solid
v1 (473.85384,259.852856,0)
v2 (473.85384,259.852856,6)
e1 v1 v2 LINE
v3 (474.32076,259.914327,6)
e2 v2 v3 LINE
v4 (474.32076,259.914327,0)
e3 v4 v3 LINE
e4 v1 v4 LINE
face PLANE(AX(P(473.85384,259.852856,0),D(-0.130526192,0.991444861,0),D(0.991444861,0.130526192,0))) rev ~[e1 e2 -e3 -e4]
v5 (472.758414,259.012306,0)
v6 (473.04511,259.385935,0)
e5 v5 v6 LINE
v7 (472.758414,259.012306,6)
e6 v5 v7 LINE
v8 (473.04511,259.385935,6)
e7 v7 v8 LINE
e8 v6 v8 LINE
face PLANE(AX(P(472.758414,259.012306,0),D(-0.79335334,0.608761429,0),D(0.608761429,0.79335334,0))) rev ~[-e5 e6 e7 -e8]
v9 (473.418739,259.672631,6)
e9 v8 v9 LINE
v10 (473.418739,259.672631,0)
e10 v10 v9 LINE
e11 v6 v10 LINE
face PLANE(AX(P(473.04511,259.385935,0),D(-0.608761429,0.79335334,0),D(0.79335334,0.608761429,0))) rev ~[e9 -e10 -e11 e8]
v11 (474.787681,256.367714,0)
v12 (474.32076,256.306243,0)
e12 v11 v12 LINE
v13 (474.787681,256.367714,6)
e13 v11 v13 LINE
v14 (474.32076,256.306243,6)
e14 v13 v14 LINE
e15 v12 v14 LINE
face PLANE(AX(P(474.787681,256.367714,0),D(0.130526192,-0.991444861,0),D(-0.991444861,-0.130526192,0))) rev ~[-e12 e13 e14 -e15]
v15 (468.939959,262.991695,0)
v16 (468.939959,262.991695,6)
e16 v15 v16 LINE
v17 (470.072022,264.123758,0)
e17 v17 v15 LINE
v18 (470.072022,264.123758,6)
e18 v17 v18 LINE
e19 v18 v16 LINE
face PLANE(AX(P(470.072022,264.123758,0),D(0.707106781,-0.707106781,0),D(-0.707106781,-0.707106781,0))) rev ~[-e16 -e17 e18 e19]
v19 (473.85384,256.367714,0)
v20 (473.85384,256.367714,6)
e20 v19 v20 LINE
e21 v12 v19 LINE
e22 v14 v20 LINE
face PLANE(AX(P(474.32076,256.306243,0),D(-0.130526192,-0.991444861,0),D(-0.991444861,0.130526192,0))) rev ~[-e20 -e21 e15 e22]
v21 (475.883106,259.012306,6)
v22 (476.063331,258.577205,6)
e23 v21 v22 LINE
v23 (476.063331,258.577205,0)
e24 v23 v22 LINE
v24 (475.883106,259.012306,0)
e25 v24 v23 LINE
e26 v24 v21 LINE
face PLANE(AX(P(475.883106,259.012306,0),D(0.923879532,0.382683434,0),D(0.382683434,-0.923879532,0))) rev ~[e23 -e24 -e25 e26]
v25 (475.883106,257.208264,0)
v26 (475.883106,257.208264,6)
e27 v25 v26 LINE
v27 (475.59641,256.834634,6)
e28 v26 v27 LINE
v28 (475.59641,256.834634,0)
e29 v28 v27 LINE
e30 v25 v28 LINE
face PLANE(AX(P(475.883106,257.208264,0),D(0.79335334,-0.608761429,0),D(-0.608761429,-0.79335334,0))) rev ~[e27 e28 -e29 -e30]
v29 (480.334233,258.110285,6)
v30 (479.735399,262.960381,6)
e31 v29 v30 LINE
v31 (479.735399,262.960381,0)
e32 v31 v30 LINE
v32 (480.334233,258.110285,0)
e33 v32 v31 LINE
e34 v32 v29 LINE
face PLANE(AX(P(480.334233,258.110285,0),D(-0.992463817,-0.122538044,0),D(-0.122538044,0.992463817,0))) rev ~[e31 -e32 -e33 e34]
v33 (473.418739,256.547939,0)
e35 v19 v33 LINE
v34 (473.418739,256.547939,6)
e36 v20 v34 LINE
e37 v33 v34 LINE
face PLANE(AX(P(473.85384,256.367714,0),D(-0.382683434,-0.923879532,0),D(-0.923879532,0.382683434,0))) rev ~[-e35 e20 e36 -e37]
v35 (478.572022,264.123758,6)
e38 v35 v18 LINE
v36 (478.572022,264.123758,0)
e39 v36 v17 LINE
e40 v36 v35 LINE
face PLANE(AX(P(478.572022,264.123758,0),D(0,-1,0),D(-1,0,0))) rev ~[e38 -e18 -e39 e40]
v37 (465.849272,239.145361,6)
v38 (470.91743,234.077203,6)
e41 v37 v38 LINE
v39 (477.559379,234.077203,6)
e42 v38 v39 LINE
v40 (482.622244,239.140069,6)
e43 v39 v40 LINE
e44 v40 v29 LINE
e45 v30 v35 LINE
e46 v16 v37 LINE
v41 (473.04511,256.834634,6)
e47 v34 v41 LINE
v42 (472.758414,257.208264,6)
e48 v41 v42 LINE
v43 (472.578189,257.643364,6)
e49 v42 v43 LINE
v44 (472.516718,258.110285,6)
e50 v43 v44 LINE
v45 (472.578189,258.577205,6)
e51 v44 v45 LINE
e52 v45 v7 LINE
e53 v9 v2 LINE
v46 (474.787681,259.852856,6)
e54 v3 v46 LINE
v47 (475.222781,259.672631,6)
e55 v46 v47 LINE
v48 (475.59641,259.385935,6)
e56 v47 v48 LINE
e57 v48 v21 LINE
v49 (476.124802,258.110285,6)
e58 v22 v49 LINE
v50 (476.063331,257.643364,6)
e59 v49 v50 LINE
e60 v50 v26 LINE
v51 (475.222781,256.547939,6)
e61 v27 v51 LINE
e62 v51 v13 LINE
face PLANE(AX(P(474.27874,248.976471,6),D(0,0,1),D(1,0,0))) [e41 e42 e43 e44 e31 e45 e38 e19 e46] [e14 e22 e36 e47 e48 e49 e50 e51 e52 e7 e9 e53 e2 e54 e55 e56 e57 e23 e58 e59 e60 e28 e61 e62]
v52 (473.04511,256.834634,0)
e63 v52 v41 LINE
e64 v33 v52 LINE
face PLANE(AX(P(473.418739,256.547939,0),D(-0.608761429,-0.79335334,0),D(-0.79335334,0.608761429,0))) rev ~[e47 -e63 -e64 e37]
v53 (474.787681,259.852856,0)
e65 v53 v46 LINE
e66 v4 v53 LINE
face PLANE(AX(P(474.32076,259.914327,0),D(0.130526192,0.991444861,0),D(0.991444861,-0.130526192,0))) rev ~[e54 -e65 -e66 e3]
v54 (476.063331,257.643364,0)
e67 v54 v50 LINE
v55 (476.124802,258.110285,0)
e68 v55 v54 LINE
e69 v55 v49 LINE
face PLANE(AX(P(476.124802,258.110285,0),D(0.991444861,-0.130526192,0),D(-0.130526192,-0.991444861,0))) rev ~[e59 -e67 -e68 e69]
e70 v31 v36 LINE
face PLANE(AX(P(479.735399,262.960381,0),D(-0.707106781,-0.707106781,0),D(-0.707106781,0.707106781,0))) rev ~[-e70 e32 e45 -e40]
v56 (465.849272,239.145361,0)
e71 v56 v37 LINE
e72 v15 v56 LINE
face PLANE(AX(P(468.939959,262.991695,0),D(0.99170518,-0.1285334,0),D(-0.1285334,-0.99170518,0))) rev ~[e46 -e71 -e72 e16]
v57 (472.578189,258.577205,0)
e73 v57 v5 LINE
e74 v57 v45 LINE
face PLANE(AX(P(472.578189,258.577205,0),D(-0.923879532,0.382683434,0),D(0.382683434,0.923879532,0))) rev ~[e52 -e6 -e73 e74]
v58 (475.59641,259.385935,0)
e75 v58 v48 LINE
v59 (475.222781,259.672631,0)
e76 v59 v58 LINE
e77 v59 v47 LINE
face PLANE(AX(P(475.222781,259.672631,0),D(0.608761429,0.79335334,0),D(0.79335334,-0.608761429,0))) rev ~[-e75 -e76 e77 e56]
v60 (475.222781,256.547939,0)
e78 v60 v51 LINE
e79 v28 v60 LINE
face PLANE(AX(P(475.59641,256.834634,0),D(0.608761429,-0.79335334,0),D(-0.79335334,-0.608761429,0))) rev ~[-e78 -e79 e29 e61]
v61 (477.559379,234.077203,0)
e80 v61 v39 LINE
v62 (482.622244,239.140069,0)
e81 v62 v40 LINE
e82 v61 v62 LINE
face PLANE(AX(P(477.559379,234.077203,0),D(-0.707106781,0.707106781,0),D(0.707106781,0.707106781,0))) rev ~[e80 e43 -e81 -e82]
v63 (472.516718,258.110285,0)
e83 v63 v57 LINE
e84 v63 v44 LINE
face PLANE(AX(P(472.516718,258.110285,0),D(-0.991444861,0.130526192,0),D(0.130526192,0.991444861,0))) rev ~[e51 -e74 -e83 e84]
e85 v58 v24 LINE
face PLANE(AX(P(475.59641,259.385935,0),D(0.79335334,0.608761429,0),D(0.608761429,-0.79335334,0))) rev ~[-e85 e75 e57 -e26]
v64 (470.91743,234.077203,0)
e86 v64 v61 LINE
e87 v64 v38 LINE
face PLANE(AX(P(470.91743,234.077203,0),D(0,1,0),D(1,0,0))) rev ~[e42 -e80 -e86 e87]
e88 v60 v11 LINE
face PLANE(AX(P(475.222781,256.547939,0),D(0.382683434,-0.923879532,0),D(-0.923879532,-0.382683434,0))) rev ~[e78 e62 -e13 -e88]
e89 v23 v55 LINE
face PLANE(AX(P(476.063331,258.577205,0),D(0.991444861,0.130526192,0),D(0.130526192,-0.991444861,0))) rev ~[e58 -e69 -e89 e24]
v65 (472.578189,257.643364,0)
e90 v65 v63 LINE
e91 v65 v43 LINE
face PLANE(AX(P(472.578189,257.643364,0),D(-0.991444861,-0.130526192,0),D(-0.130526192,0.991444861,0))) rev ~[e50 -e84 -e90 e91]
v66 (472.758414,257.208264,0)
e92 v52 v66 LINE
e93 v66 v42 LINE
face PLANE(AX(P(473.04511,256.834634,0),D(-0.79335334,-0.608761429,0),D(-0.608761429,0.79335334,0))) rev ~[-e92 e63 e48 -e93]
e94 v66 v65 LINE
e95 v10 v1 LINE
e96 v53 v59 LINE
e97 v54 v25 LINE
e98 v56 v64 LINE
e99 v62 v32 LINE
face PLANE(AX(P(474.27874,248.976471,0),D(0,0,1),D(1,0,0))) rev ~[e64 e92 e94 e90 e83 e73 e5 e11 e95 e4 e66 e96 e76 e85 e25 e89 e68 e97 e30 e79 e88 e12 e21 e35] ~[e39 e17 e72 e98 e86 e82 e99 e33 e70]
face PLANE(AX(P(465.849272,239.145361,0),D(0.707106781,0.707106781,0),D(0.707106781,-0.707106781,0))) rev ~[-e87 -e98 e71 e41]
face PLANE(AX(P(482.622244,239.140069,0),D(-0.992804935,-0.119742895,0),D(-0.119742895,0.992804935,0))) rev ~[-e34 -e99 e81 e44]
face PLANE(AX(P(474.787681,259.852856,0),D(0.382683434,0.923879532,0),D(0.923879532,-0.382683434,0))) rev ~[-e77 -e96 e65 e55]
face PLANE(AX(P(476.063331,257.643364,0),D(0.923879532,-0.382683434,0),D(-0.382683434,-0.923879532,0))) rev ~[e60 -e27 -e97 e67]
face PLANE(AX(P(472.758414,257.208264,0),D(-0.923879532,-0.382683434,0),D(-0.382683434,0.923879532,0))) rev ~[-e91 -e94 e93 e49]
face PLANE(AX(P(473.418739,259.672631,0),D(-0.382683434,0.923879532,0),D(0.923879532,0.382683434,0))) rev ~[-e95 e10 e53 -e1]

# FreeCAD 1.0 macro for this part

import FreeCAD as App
import Part
import Sketcher

V = App.Vector
Q = App.Units.Quantity


def add_polygon(sketch, points):
    """Adds a closed chain of lines whose ends are joined by coincident constraints."""
    first, n = sketch.GeometryCount, len(points)
    for a, b in zip(points, points[1:] + points[:1]):
        sketch.addGeometry(Part.LineSegment(App.Vector(*a, 0), App.Vector(*b, 0)), False)
    for i in range(n):
        sketch.addConstraint(Sketcher.Constraint("Coincident", first + i, 2, first + (i + 1) % n, 1))

doc = App.newDocument("Part")
body = doc.addObject("PartDesign::Body", "Body")

# Sketch on XY plane
sketch1 = body.newObject("Sketcher::SketchObject", "Sketch")
sketch1.AttachmentSupport = (doc.getObject("XY_Plane"), [""])
sketch1.MapMode = "FlatFace"
add_polygon(sketch1, [(480.334233, 258.110285), (479.735399, 262.960381), (478.572022, 264.123758), (470.072022, 264.123758), (468.939959, 262.991695), (465.849272, 239.145361), (470.91743, 234.077203), (477.559379, 234.077203), (482.622244, 239.140069)])  # lines 0-8
add_polygon(sketch1, [(475.59641, 259.385935), (475.883106, 259.012306), (476.063331, 258.577205), (476.124802, 258.110285), (476.063331, 257.643364), (475.883106, 257.208264), (475.59641, 256.834634), (475.222781, 256.547939), (474.787681, 256.367714), (474.32076, 256.306243), (473.85384, 256.367714), (473.418739, 256.547939), (473.04511, 256.834634), (472.758414, 257.208264), (472.578189, 257.643364), (472.516718, 258.110285), (472.578189, 258.577205), (472.758414, 259.012306), (473.04511, 259.385935), (473.418739, 259.672631), (473.85384, 259.852856), (474.32076, 259.914327), (474.787681, 259.852856), (475.222781, 259.672631)])  # lines 9-32
sketch1.addConstraint([
    Sketcher.Constraint("Horizontal", 2),
    Sketcher.Constraint("Horizontal", 6),
    Sketcher.Constraint("Perpendicular", 1, 3),
    Sketcher.Constraint("Perpendicular", 3, 5),
    Sketcher.Constraint("Perpendicular", 5, 7),
    Sketcher.Constraint("Perpendicular", 9, 15),
    Sketcher.Constraint("Perpendicular", 10, 16),
    Sketcher.Constraint("Perpendicular", 11, 17),
    Sketcher.Constraint("Perpendicular", 12, 18),
    Sketcher.Constraint("Perpendicular", 13, 19),
    Sketcher.Constraint("Perpendicular", 14, 20),
    Sketcher.Constraint("Perpendicular", 15, 21),
    Sketcher.Constraint("Perpendicular", 16, 22),
    Sketcher.Constraint("Perpendicular", 17, 23),
    Sketcher.Constraint("Perpendicular", 18, 24),
    Sketcher.Constraint("Perpendicular", 19, 25),
    Sketcher.Constraint("Perpendicular", 20, 26),
    Sketcher.Constraint("Perpendicular", 21, 27),
    Sketcher.Constraint("Perpendicular", 22, 28),
    Sketcher.Constraint("Perpendicular", 23, 29),
    Sketcher.Constraint("Perpendicular", 24, 30),
    Sketcher.Constraint("Perpendicular", 25, 31),
    Sketcher.Constraint("Perpendicular", 26, 32),
    Sketcher.Constraint("Horizontal", 8, 2, 11, 2),
    Sketcher.Constraint("Horizontal", 16, 2, 18, 2),
    Sketcher.Constraint("Horizontal", 15, 2, 19, 2),
    Sketcher.Constraint("Horizontal", 14, 2, 20, 2),
    Sketcher.Constraint("Horizontal", 13, 2, 21, 2),
    Sketcher.Constraint("Horizontal", 12, 2, 22, 2),
    Sketcher.Constraint("Horizontal", 11, 2, 23, 2),
    Sketcher.Constraint("Horizontal", 10, 2, 24, 2),
    Sketcher.Constraint("Horizontal", 9, 2, 25, 2),
    Sketcher.Constraint("Horizontal", 28, 2, 30, 2),
    Sketcher.Constraint("Horizontal", 27, 2, 31, 2),
    Sketcher.Constraint("Horizontal", 26, 2, 32, 2),
    Sketcher.Constraint("Vertical", 10, 2, 12, 2),
    Sketcher.Constraint("Vertical", 9, 2, 13, 2),
    Sketcher.Constraint("Vertical", 22, 2, 24, 2),
    Sketcher.Constraint("Vertical", 21, 2, 25, 2),
    Sketcher.Constraint("Vertical", 20, 2, 26, 2),
    Sketcher.Constraint("Vertical", 19, 2, 27, 2),
    Sketcher.Constraint("Vertical", 18, 2, 28, 2),
    Sketcher.Constraint("Vertical", 17, 2, 29, 2),
    Sketcher.Constraint("Equal", 9, 10),
    Sketcher.Constraint("Equal", 10, 11),
    Sketcher.Constraint("Equal", 14, 15),
    Sketcher.Constraint("Equal", 15, 16),
    Sketcher.Constraint("Equal", 16, 17),
    Sketcher.Constraint("Angle", 1, Q("135 deg")),
    Sketcher.Constraint("DistanceX", 2, 2, 2, 1, 8.5),
    Sketcher.Constraint("Angle", 9, Q("-52.5 deg")),
    Sketcher.Constraint("Angle", 10, Q("-67.5 deg")),
    Sketcher.Constraint("Angle", 11, Q("-82.5 deg")),
    Sketcher.Constraint("DistanceX", 6, 1, 6, 2, 6.641949),
    Sketcher.Constraint("DistanceX", -1, 1, 0, 2, 479.735399),
    Sketcher.Constraint("DistanceY", 10, 2, 9, 2, 0.435101),
    Sketcher.Constraint("Distance", 3, 1.600979),
    Sketcher.Constraint("Distance", 4, 24.045789),
    Sketcher.Constraint("DistanceY", -1, 1, 0, 2, 262.960381),
    Sketcher.Constraint("DistanceY", -1, 1, 1, 2, 264.123758),
    Sketcher.Constraint("DistanceX", -1, 1, 4, 2, 465.849272),
    Sketcher.Constraint("DistanceX", -1, 1, 5, 2, 470.91743),
    Sketcher.Constraint("DistanceY", -1, 1, 7, 2, 239.140069),
    Sketcher.Constraint("DistanceX", -1, 1, 10, 2, 476.063331),
    Sketcher.Constraint("DistanceY", -1, 1, 15, 2, 256.547939),
    Sketcher.Constraint("DistanceX", 1, 2, 8, 2, 1.762211),
])
pad1 = body.newObject("PartDesign::Pad", "Pad")
pad1.Profile = sketch1
pad1.Length = 6

doc.recompute()
